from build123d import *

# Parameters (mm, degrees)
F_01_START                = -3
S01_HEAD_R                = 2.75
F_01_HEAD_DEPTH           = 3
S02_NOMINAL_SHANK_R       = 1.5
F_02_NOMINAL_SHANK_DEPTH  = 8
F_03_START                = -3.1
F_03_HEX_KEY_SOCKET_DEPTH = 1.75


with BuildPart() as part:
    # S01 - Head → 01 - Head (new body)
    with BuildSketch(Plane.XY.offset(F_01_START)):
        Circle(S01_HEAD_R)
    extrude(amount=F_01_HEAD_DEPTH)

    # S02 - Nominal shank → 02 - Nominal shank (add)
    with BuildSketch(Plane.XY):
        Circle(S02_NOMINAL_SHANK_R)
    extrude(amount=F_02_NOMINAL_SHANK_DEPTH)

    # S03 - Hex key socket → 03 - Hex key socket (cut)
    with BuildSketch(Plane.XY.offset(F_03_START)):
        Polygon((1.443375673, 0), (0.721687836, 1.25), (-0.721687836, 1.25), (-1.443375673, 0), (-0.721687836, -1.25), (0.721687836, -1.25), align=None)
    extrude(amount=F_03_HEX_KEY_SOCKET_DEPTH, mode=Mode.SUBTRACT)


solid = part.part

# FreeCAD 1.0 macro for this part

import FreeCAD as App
import Part
import Sketcher
from FreeCAD import Vector
Q = App.Units.Quantity


def add_polygon(sketch, points):
    """Adds a closed chain of lines whose ends are joined by coincident constraints."""
    first, n = sketch.GeometryCount, len(points)
    for a, b in zip(points, points[1:] + points[:1]):
        sketch.addGeometry(Part.LineSegment(App.Vector(*a, 0), App.Vector(*b, 0)), False)
    for i in range(n):
        sketch.addConstraint(Sketcher.Constraint("Coincident", first + i, 2, first + (i + 1) % n, 1))

doc = App.newDocument("Part")
body = doc.addObject("PartDesign::Body", "Body")

# Sketch on XY plane
sketch1 = body.newObject("Sketcher::SketchObject", "Sketch")
sketch1.AttachmentSupport = (doc.getObject("XY_Plane"), [""])
sketch1.MapMode = "FlatFace"
sketch1.AttachmentOffset = App.Placement(Vector(0, 0, -3), App.Rotation())
sketch1.addGeometry(Part.Circle(Vector(0, 0, 0), Vector(0, 0, 1), 2.75), False)
sketch1.addConstraint([
    Sketcher.Constraint("Coincident", 0, 3, -1, 1),
    Sketcher.Constraint("Diameter", 0, Q("5.5 mm")),
])
pad1 = body.newObject("PartDesign::Pad", "Pad")
pad1.Profile = sketch1
pad1.Length = 3

# Sketch on XY plane
sketch2 = body.newObject("Sketcher::SketchObject", "Sketch001")
sketch2.AttachmentSupport = (doc.getObject("XY_Plane"), [""])
sketch2.MapMode = "FlatFace"
sketch2.addGeometry(Part.Circle(Vector(0, 0, 0), Vector(0, 0, 1), 1.5), False)
sketch2.addConstraint([
    Sketcher.Constraint("Coincident", 0, 3, -1, 1),
    Sketcher.Constraint("Diameter", 0, Q("3 mm")),
])
pad2 = body.newObject("PartDesign::Pad", "Pad001")
pad2.Profile = sketch2
pad2.Length = 8

# Sketch on XY plane
sketch3 = body.newObject("Sketcher::SketchObject", "Sketch002")
sketch3.AttachmentSupport = (doc.getObject("XY_Plane"), [""])
sketch3.MapMode = "FlatFace"
sketch3.AttachmentOffset = App.Placement(Vector(0, 0, -3.1), App.Rotation())
add_polygon(sketch3, [(1.443376, 0), (0.721688, 1.25), (-0.721688, 1.25), (-1.443376, 0), (-0.721688, -1.25), (0.721688, -1.25)])  # lines 0-5
sketch3.addConstraint([
    Sketcher.Constraint("Horizontal", 1),
    Sketcher.Constraint("Horizontal", 4),
    Sketcher.Constraint("Symmetric", 0, 2, 3, 2, -1, 1),
    Sketcher.Constraint("Symmetric", 2, 2, 5, 2, -1, 1),
    Sketcher.Constraint("PointOnObject", 2, 2, -1),
    Sketcher.Constraint("Parallel", 2, 5),
    Sketcher.Constraint("Vertical", 1, 2, 3, 2),
    Sketcher.Constraint("Angle", 0, Q("120 deg")),
    Sketcher.Constraint("DistanceY", 3, 2, 1, 2, Q("2.5 mm")),
    Sketcher.Constraint("DistanceX", 1, 2, 1, 1, Q("1.443376 mm")),
])
pocket1 = body.newObject("PartDesign::Pocket", "Pocket")
pocket1.Profile = sketch3
pocket1.Length = 1.75
pocket1.Reversed = True

doc.recompute()
